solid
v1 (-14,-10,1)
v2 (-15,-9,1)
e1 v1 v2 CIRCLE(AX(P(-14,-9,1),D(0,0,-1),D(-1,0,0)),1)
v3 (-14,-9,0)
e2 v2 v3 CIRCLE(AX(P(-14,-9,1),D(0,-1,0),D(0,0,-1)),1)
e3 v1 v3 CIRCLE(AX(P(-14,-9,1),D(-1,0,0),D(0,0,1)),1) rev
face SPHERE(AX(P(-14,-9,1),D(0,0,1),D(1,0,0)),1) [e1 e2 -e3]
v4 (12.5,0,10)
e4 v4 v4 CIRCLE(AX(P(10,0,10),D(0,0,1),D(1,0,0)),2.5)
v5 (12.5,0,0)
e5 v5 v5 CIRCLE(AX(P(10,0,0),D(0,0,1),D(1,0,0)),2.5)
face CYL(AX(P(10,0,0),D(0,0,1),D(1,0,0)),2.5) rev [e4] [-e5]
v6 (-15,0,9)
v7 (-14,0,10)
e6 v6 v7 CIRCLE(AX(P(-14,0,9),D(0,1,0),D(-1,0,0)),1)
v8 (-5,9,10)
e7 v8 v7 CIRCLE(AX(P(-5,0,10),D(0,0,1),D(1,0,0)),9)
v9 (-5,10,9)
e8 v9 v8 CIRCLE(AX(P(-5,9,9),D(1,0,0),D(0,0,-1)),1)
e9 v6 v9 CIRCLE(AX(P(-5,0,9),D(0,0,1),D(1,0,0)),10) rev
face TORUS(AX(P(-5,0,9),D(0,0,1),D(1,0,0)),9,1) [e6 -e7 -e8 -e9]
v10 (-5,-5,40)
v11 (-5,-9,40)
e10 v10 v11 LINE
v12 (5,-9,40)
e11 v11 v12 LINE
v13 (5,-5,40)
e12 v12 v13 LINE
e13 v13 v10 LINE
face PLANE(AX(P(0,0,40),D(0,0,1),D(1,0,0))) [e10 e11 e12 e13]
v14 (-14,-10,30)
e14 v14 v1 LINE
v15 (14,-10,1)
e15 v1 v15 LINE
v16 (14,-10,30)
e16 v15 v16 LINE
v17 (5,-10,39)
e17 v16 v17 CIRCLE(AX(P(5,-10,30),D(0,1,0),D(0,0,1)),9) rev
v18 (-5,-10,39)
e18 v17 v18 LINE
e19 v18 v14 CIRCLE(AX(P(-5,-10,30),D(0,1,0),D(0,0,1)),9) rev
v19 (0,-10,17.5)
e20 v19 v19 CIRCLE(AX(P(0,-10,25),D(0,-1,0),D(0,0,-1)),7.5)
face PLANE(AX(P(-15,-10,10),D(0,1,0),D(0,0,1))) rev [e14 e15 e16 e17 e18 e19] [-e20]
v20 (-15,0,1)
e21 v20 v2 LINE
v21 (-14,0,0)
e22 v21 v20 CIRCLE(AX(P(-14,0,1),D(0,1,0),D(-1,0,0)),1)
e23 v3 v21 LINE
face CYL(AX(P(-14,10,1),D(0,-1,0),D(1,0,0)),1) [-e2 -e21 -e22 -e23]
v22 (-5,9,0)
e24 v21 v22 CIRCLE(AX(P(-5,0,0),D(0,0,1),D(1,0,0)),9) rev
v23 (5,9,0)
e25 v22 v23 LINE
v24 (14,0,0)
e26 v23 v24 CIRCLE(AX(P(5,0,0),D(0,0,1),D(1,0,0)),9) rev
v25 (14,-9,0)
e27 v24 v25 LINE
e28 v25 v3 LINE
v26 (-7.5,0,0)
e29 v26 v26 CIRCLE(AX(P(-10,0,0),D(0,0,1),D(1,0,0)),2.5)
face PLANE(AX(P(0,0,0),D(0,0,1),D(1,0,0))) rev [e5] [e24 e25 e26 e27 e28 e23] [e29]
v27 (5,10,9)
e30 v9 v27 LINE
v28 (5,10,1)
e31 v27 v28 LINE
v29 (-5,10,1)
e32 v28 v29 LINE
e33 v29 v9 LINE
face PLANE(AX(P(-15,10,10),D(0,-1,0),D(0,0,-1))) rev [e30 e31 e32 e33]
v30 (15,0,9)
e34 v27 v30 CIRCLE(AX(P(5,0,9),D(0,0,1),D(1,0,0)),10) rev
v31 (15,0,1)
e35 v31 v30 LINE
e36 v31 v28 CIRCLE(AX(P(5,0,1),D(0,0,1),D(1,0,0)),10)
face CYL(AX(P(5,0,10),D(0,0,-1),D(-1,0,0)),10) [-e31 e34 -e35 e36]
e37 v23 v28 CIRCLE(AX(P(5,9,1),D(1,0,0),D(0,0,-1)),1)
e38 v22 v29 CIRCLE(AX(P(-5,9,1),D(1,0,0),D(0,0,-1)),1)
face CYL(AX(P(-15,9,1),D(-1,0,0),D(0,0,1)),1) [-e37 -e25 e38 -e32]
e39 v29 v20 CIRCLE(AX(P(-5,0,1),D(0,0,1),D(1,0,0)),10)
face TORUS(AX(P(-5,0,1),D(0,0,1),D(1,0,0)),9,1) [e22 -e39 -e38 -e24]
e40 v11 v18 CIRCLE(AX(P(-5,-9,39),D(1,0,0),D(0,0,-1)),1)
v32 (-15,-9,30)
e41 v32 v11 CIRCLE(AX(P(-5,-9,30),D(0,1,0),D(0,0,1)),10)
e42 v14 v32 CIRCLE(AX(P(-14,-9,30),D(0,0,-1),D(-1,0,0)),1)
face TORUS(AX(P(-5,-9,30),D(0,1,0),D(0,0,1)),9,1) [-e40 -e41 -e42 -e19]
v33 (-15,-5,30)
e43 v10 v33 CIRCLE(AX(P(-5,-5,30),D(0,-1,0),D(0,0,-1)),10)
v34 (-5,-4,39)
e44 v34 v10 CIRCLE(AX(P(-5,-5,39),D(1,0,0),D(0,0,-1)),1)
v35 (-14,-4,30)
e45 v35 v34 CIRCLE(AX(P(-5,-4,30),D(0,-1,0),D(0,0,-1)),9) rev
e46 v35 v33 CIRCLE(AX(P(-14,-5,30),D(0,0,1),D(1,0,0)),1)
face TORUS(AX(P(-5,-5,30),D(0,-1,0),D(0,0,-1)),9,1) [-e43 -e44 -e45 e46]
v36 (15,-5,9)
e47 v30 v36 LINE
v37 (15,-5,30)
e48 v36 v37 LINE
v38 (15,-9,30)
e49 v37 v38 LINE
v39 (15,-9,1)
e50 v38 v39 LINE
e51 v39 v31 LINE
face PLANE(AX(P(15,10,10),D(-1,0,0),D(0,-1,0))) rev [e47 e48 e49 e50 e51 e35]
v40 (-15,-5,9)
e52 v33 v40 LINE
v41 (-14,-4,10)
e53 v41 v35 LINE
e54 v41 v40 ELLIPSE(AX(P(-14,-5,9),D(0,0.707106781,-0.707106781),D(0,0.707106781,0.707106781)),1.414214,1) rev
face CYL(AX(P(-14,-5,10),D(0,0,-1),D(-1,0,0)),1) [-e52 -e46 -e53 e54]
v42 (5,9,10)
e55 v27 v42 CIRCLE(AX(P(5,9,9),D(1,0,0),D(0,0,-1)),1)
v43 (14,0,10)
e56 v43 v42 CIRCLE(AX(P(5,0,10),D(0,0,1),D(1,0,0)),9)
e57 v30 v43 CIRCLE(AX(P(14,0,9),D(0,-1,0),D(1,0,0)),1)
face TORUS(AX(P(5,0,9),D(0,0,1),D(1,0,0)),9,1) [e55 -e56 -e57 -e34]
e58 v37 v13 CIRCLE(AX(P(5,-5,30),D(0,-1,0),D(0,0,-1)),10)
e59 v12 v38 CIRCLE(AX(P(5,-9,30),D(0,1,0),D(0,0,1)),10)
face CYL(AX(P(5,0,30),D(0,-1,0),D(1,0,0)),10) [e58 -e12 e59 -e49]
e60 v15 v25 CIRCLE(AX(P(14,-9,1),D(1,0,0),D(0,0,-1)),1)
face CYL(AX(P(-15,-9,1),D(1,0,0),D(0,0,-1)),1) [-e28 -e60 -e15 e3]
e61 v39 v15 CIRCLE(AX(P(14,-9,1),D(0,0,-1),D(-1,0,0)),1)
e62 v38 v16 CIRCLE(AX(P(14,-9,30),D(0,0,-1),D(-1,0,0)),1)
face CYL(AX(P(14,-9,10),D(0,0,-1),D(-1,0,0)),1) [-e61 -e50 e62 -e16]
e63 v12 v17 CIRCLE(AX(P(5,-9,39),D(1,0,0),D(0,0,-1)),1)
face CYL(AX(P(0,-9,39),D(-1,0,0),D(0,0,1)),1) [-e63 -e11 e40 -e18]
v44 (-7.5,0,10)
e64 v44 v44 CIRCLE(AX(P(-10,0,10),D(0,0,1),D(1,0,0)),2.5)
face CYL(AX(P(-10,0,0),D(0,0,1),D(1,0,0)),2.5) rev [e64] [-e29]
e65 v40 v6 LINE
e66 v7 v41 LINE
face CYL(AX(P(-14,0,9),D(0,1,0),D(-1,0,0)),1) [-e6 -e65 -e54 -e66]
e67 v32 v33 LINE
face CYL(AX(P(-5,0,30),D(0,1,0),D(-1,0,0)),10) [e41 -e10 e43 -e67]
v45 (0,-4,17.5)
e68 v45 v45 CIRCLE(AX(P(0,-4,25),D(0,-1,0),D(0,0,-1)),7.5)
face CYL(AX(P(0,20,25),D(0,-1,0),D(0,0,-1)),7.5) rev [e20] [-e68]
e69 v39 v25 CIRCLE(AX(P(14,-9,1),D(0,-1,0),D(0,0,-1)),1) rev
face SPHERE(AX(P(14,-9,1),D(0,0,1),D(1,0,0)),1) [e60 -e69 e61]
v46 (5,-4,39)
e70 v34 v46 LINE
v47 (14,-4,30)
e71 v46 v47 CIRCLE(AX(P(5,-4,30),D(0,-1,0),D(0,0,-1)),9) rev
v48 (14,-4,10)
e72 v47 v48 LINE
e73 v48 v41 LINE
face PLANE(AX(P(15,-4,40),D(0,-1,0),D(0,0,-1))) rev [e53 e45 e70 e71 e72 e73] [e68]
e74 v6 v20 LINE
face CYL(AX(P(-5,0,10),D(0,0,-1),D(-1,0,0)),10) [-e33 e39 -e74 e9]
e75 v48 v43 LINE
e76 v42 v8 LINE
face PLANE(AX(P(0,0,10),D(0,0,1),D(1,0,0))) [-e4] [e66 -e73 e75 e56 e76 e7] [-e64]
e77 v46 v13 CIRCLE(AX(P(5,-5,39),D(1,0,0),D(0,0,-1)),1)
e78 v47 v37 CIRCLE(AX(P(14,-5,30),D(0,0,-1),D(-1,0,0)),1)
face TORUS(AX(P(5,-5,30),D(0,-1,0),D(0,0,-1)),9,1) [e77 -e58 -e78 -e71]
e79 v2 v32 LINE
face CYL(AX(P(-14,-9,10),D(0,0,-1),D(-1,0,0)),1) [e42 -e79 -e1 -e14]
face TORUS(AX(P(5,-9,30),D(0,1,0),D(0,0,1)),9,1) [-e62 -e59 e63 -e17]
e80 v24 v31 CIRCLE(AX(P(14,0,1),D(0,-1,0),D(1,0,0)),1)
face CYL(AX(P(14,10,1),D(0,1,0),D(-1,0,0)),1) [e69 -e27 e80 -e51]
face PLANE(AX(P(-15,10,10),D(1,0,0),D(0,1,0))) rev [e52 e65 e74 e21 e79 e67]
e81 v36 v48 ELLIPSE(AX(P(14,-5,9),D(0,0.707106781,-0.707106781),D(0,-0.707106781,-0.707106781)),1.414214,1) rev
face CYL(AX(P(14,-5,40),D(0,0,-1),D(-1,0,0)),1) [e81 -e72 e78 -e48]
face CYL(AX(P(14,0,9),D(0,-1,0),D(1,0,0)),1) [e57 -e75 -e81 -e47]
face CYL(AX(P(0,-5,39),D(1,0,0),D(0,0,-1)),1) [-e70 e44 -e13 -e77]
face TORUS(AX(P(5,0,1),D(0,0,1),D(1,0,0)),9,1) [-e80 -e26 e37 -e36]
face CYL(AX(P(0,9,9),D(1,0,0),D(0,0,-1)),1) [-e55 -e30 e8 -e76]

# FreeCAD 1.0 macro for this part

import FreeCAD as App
import Part
import Sketcher

V = App.Vector


def edges_at(feature, points):
    """Names of the edges that pass closest to the given points."""
    edges = feature.Shape.Edges
    near = lambda p: min(range(len(edges)), key=lambda i: edges[i].distToShape(Part.Vertex(*p))[0])
    return sorted({f"Edge{near(p) + 1}" for p in points})

doc = App.newDocument("Part")
body = doc.addObject("PartDesign::Body", "Body")

sketch1 = body.newObject("Sketcher::SketchObject", "Sketch")
sketch1.AttachmentSupport = (doc.getObject("XY_Plane"), [""])
sketch1.MapMode = "FlatFace"
sketch1.addGeometry([
    Part.LineSegment(V(-15, 10, 0), V(-15, -10, 0)),
    Part.LineSegment(V(-15, -10, 0), V(15, -10, 0)),
    Part.LineSegment(V(15, -10, 0), V(15, 10, 0)),
    Part.LineSegment(V(15, 10, 0), V(-15, 10, 0)),
], False)
sketch1.addConstraint([
    Sketcher.Constraint("Coincident", 0, 2, 1, 1),
    Sketcher.Constraint("Coincident", 1, 2, 2, 1),
    Sketcher.Constraint("Coincident", 2, 2, 3, 1),
    Sketcher.Constraint("Coincident", 3, 2, 0, 1),
    Sketcher.Constraint("Vertical", 0),
    Sketcher.Constraint("Horizontal", 1),
    Sketcher.Constraint("Vertical", 2),
    Sketcher.Constraint("Horizontal", 3),
    Sketcher.Constraint("Symmetric", 0, 2, 2, 2, -1, 1),
    Sketcher.Constraint("DistanceX", 1, 1, 1, 2, 30.0),
    Sketcher.Constraint("DistanceY", 0, 2, 0, 1, 20.0),
])
pad1 = body.newObject("PartDesign::Pad", "Pad")
pad1.Profile = sketch1
pad1.Length = 10

sketch2 = body.newObject("Sketcher::SketchObject", "Sketch001")
sketch2.AttachmentSupport = (doc.getObject("XY_Plane"), [""])
sketch2.MapMode = "FlatFace"
sketch2.AttachmentOffset = App.Placement(V(0, 0, 10), App.Rotation())
sketch2.addGeometry([
    Part.Circle(V(-10, 0, 0), V(0, 0, 1), 2.5),
    Part.Circle(V(10, 0, 0), V(0, 0, 1), 2.5),
], False)
sketch2.addConstraint([
    Sketcher.Constraint("Equal", 0, 1),
    Sketcher.Constraint("Symmetric", 0, 3, 1, 3, -1, 1),
    Sketcher.Constraint("PointOnObject", 0, 3, -1),
    Sketcher.Constraint("Diameter", 0, 5.0),
    Sketcher.Constraint("DistanceX", 0, 3, -1, 1, 10.0),
])
pocket1 = body.newObject("PartDesign::Pocket", "Pocket")
pocket1.Profile = sketch2
pocket1.Type = "ThroughAll"

sketch3 = body.newObject("Sketcher::SketchObject", "Sketch002")
sketch3.AttachmentSupport = (doc.getObject("XY_Plane"), [""])
sketch3.MapMode = "FlatFace"
sketch3.AttachmentOffset = App.Placement(V(0, 0, 10), App.Rotation())
sketch3.addGeometry([
    Part.LineSegment(V(-15, -4, 0), V(-15, -10, 0)),
    Part.LineSegment(V(-15, -10, 0), V(15, -10, 0)),
    Part.LineSegment(V(15, -10, 0), V(15, -4, 0)),
    Part.LineSegment(V(15, -4, 0), V(-15, -4, 0)),
], False)
sketch3.addConstraint([
    Sketcher.Constraint("Coincident", 0, 2, 1, 1),
    Sketcher.Constraint("Coincident", 1, 2, 2, 1),
    Sketcher.Constraint("Coincident", 2, 2, 3, 1),
    Sketcher.Constraint("Coincident", 3, 2, 0, 1),
    Sketcher.Constraint("Vertical", 0),
    Sketcher.Constraint("Horizontal", 1),
    Sketcher.Constraint("Vertical", 2),
    Sketcher.Constraint("Horizontal", 3),
    Sketcher.Constraint("DistanceX", 1, 1, 1, 2, 30.0),
    Sketcher.Constraint("DistanceY", 0, 2, 0, 1, 6.0),
    Sketcher.Constraint("DistanceX", 0, 2, -1, 1, 15.0),
    Sketcher.Constraint("DistanceY", 0, 2, -1, 1, 10.0),
])
pad2 = body.newObject("PartDesign::Pad", "Pad001")
pad2.Profile = sketch3
pad2.Length = 30

sketch4 = body.newObject("Sketcher::SketchObject", "Sketch003")
sketch4.AttachmentSupport = (doc.getObject("XZ_Plane"), [""])
sketch4.MapMode = "FlatFace"
sketch4.AttachmentOffset = App.Placement(V(0, 0, 10), App.Rotation())
sketch4.addGeometry(Part.Circle(V(0, 25, 0), V(0, 0, 1), 8), False)
sketch4.addConstraint([
    Sketcher.Constraint("PointOnObject", 0, 3, -2),
    Sketcher.Constraint("Diameter", 0, 15.0),
    Sketcher.Constraint("DistanceY", -1, 1, 0, 3, 25.0),
])
pocket2 = body.newObject("PartDesign::Pocket", "Pocket001")
pocket2.Profile = sketch4
pocket2.Length = 30
doc.recompute()

fillet = body.newObject("PartDesign::Fillet", "Fillet")
fillet.Base = (pocket2, edges_at(pocket2, [(-15, -7, 40), (15, -7, 40)]))
fillet.Radius = 10
doc.recompute()

fillet2 = body.newObject("PartDesign::Fillet", "Fillet001")
fillet2.Base = (fillet, edges_at(fillet, [(-15, 10, 5), (15, 10, 5)]))
fillet2.Radius = 10
doc.recompute()

fillet3 = body.newObject("PartDesign::Fillet", "Fillet002")
fillet3.Base = (fillet2, edges_at(fillet2, [
    (0, -10, 40),
    (0, -10, 0),
    (15, -10, 15),
    (-15, -10, 15),
    (12.071, -10, 37.071),
    (-12.071, -10, 37.071),
    (15, -5, 0),
    (0, 10, 0),
    (-15, -5, 0),
    (-12.071, 7.071, 0),
    (12.071, 7.071, 0),
]))
fillet3.Radius = 1
doc.recompute()

fillet4 = body.newObject("PartDesign::Fillet", "Fillet003")
fillet4.Base = (fillet3, edges_at(fillet3, [
    (15, -2, 10),
    (0, -4, 40),
    (-15, -4, 20),
    (15, -4, 20),
    (12.071, -4, 37.071),
    (-12.071, -4, 37.071),
    (0, 10, 10),
    (-15, -2, 10),
    (-12.071, 7.071, 10),
    (12.071, 7.071, 10),
]))
fillet4.Radius = 1

doc.recompute()
